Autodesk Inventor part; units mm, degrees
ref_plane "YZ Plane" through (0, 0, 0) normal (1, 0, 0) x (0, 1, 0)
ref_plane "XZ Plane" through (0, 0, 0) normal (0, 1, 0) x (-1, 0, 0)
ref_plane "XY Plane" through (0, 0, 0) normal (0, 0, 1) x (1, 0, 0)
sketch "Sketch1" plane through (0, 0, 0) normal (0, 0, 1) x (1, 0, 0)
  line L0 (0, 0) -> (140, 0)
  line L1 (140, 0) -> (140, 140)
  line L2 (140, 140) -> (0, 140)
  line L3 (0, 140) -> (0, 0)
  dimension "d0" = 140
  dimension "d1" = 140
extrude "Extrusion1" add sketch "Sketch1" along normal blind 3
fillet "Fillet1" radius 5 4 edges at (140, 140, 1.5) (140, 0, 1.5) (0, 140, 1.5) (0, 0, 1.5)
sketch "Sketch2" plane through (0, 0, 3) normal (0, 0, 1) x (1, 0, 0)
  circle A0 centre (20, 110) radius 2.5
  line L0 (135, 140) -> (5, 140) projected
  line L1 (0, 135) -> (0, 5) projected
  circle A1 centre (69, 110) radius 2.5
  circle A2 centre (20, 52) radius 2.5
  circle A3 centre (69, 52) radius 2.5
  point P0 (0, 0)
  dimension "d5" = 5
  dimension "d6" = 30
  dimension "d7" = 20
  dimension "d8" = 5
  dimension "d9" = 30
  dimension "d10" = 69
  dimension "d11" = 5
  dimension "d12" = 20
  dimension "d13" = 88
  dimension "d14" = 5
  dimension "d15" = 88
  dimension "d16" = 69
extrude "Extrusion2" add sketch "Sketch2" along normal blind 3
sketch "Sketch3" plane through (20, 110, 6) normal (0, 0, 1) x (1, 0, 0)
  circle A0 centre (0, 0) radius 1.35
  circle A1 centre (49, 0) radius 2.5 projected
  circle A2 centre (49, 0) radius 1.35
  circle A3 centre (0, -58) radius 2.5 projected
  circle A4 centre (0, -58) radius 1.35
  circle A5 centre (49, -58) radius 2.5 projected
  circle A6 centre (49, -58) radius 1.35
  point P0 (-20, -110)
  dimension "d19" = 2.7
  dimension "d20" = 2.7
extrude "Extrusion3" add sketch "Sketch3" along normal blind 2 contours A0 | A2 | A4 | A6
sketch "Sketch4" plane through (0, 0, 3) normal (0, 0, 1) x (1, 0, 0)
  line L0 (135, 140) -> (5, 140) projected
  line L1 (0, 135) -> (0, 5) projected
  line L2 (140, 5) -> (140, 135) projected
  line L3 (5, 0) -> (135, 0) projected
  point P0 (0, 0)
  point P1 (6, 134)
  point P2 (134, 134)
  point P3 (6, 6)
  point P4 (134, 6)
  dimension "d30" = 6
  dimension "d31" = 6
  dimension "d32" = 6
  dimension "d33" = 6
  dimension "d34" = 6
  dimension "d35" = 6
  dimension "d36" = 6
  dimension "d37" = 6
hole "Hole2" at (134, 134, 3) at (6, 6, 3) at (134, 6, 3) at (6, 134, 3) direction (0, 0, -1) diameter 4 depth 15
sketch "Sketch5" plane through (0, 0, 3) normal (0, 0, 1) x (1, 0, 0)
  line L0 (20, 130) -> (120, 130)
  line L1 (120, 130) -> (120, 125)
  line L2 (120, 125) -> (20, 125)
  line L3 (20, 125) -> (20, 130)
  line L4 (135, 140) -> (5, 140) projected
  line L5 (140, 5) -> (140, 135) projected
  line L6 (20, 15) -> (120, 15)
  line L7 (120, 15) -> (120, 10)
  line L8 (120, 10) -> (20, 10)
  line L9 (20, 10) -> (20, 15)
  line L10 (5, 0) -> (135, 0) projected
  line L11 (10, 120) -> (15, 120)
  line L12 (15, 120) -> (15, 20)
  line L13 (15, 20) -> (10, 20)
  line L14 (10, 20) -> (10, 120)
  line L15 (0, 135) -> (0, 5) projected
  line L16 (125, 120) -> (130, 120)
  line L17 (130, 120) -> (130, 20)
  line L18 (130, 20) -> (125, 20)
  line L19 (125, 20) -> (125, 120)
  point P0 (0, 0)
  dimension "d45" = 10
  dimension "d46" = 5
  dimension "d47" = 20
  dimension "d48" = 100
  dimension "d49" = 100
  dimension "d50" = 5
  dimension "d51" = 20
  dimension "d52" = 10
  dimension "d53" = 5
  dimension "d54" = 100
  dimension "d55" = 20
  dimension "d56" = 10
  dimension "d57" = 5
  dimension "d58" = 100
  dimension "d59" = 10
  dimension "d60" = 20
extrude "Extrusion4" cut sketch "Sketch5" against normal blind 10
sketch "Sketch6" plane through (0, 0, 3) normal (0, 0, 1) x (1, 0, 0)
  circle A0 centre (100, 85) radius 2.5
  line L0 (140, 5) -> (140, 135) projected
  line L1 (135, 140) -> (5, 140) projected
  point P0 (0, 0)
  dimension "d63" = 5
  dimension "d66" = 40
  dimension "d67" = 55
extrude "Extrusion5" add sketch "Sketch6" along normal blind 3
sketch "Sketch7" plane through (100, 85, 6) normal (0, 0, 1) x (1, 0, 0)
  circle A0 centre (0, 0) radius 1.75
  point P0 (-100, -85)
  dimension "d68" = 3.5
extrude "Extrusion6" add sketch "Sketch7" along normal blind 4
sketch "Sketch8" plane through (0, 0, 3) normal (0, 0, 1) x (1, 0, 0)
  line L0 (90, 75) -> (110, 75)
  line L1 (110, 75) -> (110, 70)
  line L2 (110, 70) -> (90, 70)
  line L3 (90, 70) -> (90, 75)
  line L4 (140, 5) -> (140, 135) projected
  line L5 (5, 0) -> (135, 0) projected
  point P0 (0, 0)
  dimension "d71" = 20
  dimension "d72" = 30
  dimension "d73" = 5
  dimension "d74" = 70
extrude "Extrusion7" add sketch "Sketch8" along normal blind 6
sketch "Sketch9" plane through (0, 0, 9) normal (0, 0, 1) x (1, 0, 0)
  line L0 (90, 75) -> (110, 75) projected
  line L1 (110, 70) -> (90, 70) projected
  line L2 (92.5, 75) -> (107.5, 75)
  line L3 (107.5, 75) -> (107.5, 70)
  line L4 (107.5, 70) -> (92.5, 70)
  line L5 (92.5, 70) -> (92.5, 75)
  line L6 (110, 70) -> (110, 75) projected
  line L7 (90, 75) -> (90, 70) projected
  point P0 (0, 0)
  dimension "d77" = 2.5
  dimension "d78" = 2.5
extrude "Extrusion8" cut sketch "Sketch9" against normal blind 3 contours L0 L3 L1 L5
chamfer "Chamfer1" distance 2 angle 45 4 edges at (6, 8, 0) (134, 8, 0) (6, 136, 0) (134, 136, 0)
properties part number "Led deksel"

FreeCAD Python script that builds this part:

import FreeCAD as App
import Part
import Sketcher
from FreeCAD import Vector


def edges_at(feature, points):
    """Names of the edges that pass closest to the given points."""
    edges = feature.Shape.Edges
    near = lambda p: min(range(len(edges)), key=lambda i: edges[i].distToShape(Part.Vertex(*p))[0])
    return sorted({f"Edge{near(p) + 1}" for p in points})

doc = App.newDocument("Part")
body = doc.addObject("PartDesign::Body", "Body")

# Sketch on XY plane
sketch1 = body.newObject("Sketcher::SketchObject", "Sketch")
sketch1.AttachmentSupport = (doc.getObject("XY_Plane"), [""])
sketch1.MapMode = "FlatFace"
sketch1.addGeometry(Part.LineSegment(Vector(0, 140, 0), Vector(0, 0, 0)), False)
sketch1.addGeometry(Part.LineSegment(Vector(0, 0, 0), Vector(140, 0, 0)), False)
sketch1.addGeometry(Part.LineSegment(Vector(140, 0, 0), Vector(140, 140, 0)), False)
sketch1.addGeometry(Part.LineSegment(Vector(140, 140, 0), Vector(0, 140, 0)), False)
sketch1.addConstraint(Sketcher.Constraint("Coincident", 0, 2, 1, 1))
sketch1.addConstraint(Sketcher.Constraint("Coincident", 1, 2, 2, 1))
sketch1.addConstraint(Sketcher.Constraint("Coincident", 2, 2, 3, 1))
sketch1.addConstraint(Sketcher.Constraint("Coincident", 3, 2, 0, 1))
sketch1.addConstraint(Sketcher.Constraint("Vertical", 0))
sketch1.addConstraint(Sketcher.Constraint("Horizontal", 1))
sketch1.addConstraint(Sketcher.Constraint("Vertical", 2))
sketch1.addConstraint(Sketcher.Constraint("Horizontal", 3))
sketch1.addConstraint(Sketcher.Constraint("Coincident", 0, 2, -1, 1))
sketch1.addConstraint(Sketcher.Constraint("Equal", 3, 0))
sketch1.addConstraint(Sketcher.Constraint("DistanceX", 1, 1, 1, 2, 140.0))
pad1 = body.newObject("PartDesign::Pad", "Pad")
pad1.Profile = sketch1
pad1.Length = 3
doc.recompute()

fillet = body.newObject("PartDesign::Fillet", "Fillet")
fillet.Base = (pad1, edges_at(pad1, [
    (140, 140, 1.5),
    (140, 0, 1.5),
    (0, 140, 1.5),
    (0, 0, 1.5),
]))
fillet.Radius = 5

# Sketch on XY plane
sketch2 = body.newObject("Sketcher::SketchObject", "Sketch001")
sketch2.AttachmentSupport = (doc.getObject("XY_Plane"), [""])
sketch2.MapMode = "FlatFace"
sketch2.AttachmentOffset = App.Placement(Vector(0, 0, 3), App.Rotation())
sketch2.addGeometry(Part.Circle(Vector(20, 110, 0), Vector(0, 0, 1), 2.5), False)
sketch2.addGeometry(Part.Circle(Vector(69, 110, 0), Vector(0, 0, 1), 2.5), False)
sketch2.addGeometry(Part.Circle(Vector(20, 52, 0), Vector(0, 0, 1), 2.5), False)
sketch2.addGeometry(Part.Circle(Vector(69, 52, 0), Vector(0, 0, 1), 2.5), False)
sketch2.addConstraint(Sketcher.Constraint("Equal", 0, 1))
sketch2.addConstraint(Sketcher.Constraint("Equal", 1, 2))
sketch2.addConstraint(Sketcher.Constraint("Equal", 2, 3))
sketch2.addConstraint(Sketcher.Constraint("Horizontal", 0, 3, 1, 3))
sketch2.addConstraint(Sketcher.Constraint("Horizontal", 2, 3, 3, 3))
sketch2.addConstraint(Sketcher.Constraint("Vertical", 0, 3, 2, 3))
sketch2.addConstraint(Sketcher.Constraint("Vertical", 1, 3, 3, 3))
sketch2.addConstraint(Sketcher.Constraint("Diameter", 0, 5.0))
sketch2.addConstraint(Sketcher.Constraint("DistanceX", -1, 1, 0, 3, 20.0))
sketch2.addConstraint(Sketcher.Constraint("DistanceX", -1, 1, 1, 3, 69.0))
sketch2.addConstraint(Sketcher.Constraint("DistanceY", -1, 1, 0, 3, 110.0))
sketch2.addConstraint(Sketcher.Constraint("DistanceY", -1, 1, 2, 3, 52.0))
pad2 = body.newObject("PartDesign::Pad", "Pad001")
pad2.Profile = sketch2
pad2.Length = 3

# Sketch on XY plane
sketch3 = body.newObject("Sketcher::SketchObject", "Sketch002")
sketch3.AttachmentSupport = (doc.getObject("XY_Plane"), [""])
sketch3.MapMode = "FlatFace"
sketch3.AttachmentOffset = App.Placement(Vector(0, 0, 6), App.Rotation())
sketch3.addGeometry(Part.Circle(Vector(20, 110, 0), Vector(0, 0, 1), 1.35), False)
sketch3.addGeometry(Part.Circle(Vector(69, 110, 0), Vector(0, 0, 1), 1.35), False)
sketch3.addGeometry(Part.Circle(Vector(20, 52, 0), Vector(0, 0, 1), 1.35), False)
sketch3.addGeometry(Part.Circle(Vector(69, 52, 0), Vector(0, 0, 1), 1.35), False)
sketch3.addConstraint(Sketcher.Constraint("Equal", 0, 1))
sketch3.addConstraint(Sketcher.Constraint("Equal", 1, 2))
sketch3.addConstraint(Sketcher.Constraint("Equal", 2, 3))
sketch3.addConstraint(Sketcher.Constraint("Horizontal", 0, 3, 1, 3))
sketch3.addConstraint(Sketcher.Constraint("Horizontal", 2, 3, 3, 3))
sketch3.addConstraint(Sketcher.Constraint("Vertical", 0, 3, 2, 3))
sketch3.addConstraint(Sketcher.Constraint("Vertical", 1, 3, 3, 3))
sketch3.addConstraint(Sketcher.Constraint("Diameter", 0, 2.7))
sketch3.addConstraint(Sketcher.Constraint("DistanceX", -1, 1, 0, 3, 20.0))
sketch3.addConstraint(Sketcher.Constraint("DistanceY", -1, 1, 0, 3, 110.0))
sketch3.addConstraint(Sketcher.Constraint("DistanceX", -1, 1, 1, 3, 69.0))
sketch3.addConstraint(Sketcher.Constraint("DistanceY", -1, 1, 2, 3, 52.0))
pad3 = body.newObject("PartDesign::Pad", "Pad002")
pad3.Profile = sketch3
pad3.Length = 2

# Sketch on XY plane
sketch4 = body.newObject("Sketcher::SketchObject", "Sketch003")
sketch4.AttachmentSupport = (doc.getObject("XY_Plane"), [""])
sketch4.MapMode = "FlatFace"
sketch4.AttachmentOffset = App.Placement(Vector(0, 0, 3), App.Rotation())
sketch4.addGeometry(Part.Circle(Vector(134, 134, 0), Vector(0, 0, 1), 2), False)
sketch4.addGeometry(Part.Circle(Vector(6, 6, 0), Vector(0, 0, 1), 2), False)
sketch4.addGeometry(Part.Circle(Vector(134, 6, 0), Vector(0, 0, 1), 2), False)
sketch4.addGeometry(Part.Circle(Vector(6, 134, 0), Vector(0, 0, 1), 2), False)
sketch4.addConstraint(Sketcher.Constraint("Equal", 0, 1))
sketch4.addConstraint(Sketcher.Constraint("Equal", 1, 2))
sketch4.addConstraint(Sketcher.Constraint("Equal", 2, 3))
sketch4.addConstraint(Sketcher.Constraint("Horizontal", 1, 3, 2, 3))
sketch4.addConstraint(Sketcher.Constraint("Horizontal", 0, 3, 3, 3))
sketch4.addConstraint(Sketcher.Constraint("Vertical", 0, 3, 2, 3))
sketch4.addConstraint(Sketcher.Constraint("Vertical", 1, 3, 3, 3))
sketch4.addConstraint(Sketcher.Constraint("Diameter", 0, 4.0))
sketch4.addConstraint(Sketcher.Constraint("DistanceX", -1, 1, 0, 3, 134.0))
sketch4.addConstraint(Sketcher.Constraint("DistanceY", -1, 1, 0, 3, 134.0))
sketch4.addConstraint(Sketcher.Constraint("DistanceX", -1, 1, 1, 3, 6.0))
sketch4.addConstraint(Sketcher.Constraint("DistanceY", -1, 1, 1, 3, 6.0))
doc.recompute()
hole = body.newObject("PartDesign::Hole", "Hole")
hole.Profile = sketch4
hole.ThreadType = "None"
hole.Diameter = 4
hole.DepthType = "Dimension"
hole.Depth = 15
hole.DrillPoint = "Flat"

# Sketch on XY plane
sketch5 = body.newObject("Sketcher::SketchObject", "Sketch004")
sketch5.AttachmentSupport = (doc.getObject("XY_Plane"), [""])
sketch5.MapMode = "FlatFace"
sketch5.AttachmentOffset = App.Placement(Vector(0, 0, 3), App.Rotation())
sketch5.addGeometry(Part.LineSegment(Vector(120, 130, 0), Vector(20, 130, 0)), False)
sketch5.addGeometry(Part.LineSegment(Vector(20, 130, 0), Vector(20, 125, 0)), False)
sketch5.addGeometry(Part.LineSegment(Vector(20, 125, 0), Vector(120, 125, 0)), False)
sketch5.addGeometry(Part.LineSegment(Vector(120, 125, 0), Vector(120, 130, 0)), False)
sketch5.addGeometry(Part.LineSegment(Vector(120, 15, 0), Vector(20, 15, 0)), False)
sketch5.addGeometry(Part.LineSegment(Vector(20, 15, 0), Vector(20, 10, 0)), False)
sketch5.addGeometry(Part.LineSegment(Vector(20, 10, 0), Vector(120, 10, 0)), False)
sketch5.addGeometry(Part.LineSegment(Vector(120, 10, 0), Vector(120, 15, 0)), False)
sketch5.addGeometry(Part.LineSegment(Vector(15, 120, 0), Vector(10, 120, 0)), False)
sketch5.addGeometry(Part.LineSegment(Vector(10, 120, 0), Vector(10, 20, 0)), False)
sketch5.addGeometry(Part.LineSegment(Vector(10, 20, 0), Vector(15, 20, 0)), False)
sketch5.addGeometry(Part.LineSegment(Vector(15, 20, 0), Vector(15, 120, 0)), False)
sketch5.addGeometry(Part.LineSegment(Vector(130, 120, 0), Vector(125, 120, 0)), False)
sketch5.addGeometry(Part.LineSegment(Vector(125, 120, 0), Vector(125, 20, 0)), False)
sketch5.addGeometry(Part.LineSegment(Vector(125, 20, 0), Vector(130, 20, 0)), False)
sketch5.addGeometry(Part.LineSegment(Vector(130, 20, 0), Vector(130, 120, 0)), False)
sketch5.addConstraint(Sketcher.Constraint("Coincident", 0, 2, 1, 1))
sketch5.addConstraint(Sketcher.Constraint("Coincident", 1, 2, 2, 1))
sketch5.addConstraint(Sketcher.Constraint("Coincident", 2, 2, 3, 1))
sketch5.addConstraint(Sketcher.Constraint("Coincident", 3, 2, 0, 1))
sketch5.addConstraint(Sketcher.Constraint("Coincident", 4, 2, 5, 1))
sketch5.addConstraint(Sketcher.Constraint("Coincident", 5, 2, 6, 1))
sketch5.addConstraint(Sketcher.Constraint("Coincident", 6, 2, 7, 1))
sketch5.addConstraint(Sketcher.Constraint("Coincident", 7, 2, 4, 1))
sketch5.addConstraint(Sketcher.Constraint("Coincident", 8, 2, 9, 1))
sketch5.addConstraint(Sketcher.Constraint("Coincident", 9, 2, 10, 1))
sketch5.addConstraint(Sketcher.Constraint("Coincident", 10, 2, 11, 1))
sketch5.addConstraint(Sketcher.Constraint("Coincident", 11, 2, 8, 1))
sketch5.addConstraint(Sketcher.Constraint("Coincident", 12, 2, 13, 1))
sketch5.addConstraint(Sketcher.Constraint("Coincident", 13, 2, 14, 1))
sketch5.addConstraint(Sketcher.Constraint("Coincident", 14, 2, 15, 1))
sketch5.addConstraint(Sketcher.Constraint("Coincident", 15, 2, 12, 1))
sketch5.addConstraint(Sketcher.Constraint("Horizontal", 0))
sketch5.addConstraint(Sketcher.Constraint("Vertical", 1))
sketch5.addConstraint(Sketcher.Constraint("Horizontal", 2))
sketch5.addConstraint(Sketcher.Constraint("Vertical", 3))
sketch5.addConstraint(Sketcher.Constraint("Horizontal", 4))
sketch5.addConstraint(Sketcher.Constraint("Vertical", 5))
sketch5.addConstraint(Sketcher.Constraint("Horizontal", 6))
sketch5.addConstraint(Sketcher.Constraint("Vertical", 7))
sketch5.addConstraint(Sketcher.Constraint("Horizontal", 8))
sketch5.addConstraint(Sketcher.Constraint("Vertical", 9))
sketch5.addConstraint(Sketcher.Constraint("Horizontal", 10))
sketch5.addConstraint(Sketcher.Constraint("Vertical", 11))
sketch5.addConstraint(Sketcher.Constraint("Horizontal", 12))
sketch5.addConstraint(Sketcher.Constraint("Vertical", 13))
sketch5.addConstraint(Sketcher.Constraint("Horizontal", 14))
sketch5.addConstraint(Sketcher.Constraint("Vertical", 15))
sketch5.addConstraint(Sketcher.Constraint("Horizontal", 11, 2, 12, 2))
sketch5.addConstraint(Sketcher.Constraint("Horizontal", 10, 2, 13, 2))
sketch5.addConstraint(Sketcher.Constraint("Vertical", 1, 2, 4, 2))
sketch5.addConstraint(Sketcher.Constraint("Vertical", 3, 2, 6, 2))
sketch5.addConstraint(Sketcher.Constraint("Equal", 10, 12))
sketch5.addConstraint(Sketcher.Constraint("Equal", 14, 1))
sketch5.addConstraint(Sketcher.Constraint("Equal", 3, 5))
sketch5.addConstraint(Sketcher.Constraint("Equal", 6, 9))
sketch5.addConstraint(Sketcher.Constraint("DistanceX", 0, 2, 0, 1, 100.0))
sketch5.addConstraint(Sketcher.Constraint("DistanceX", 8, 2, 8, 1, 5.0))
sketch5.addConstraint(Sketcher.Constraint("DistanceX", -1, 1, 0, 2, 20.0))
sketch5.addConstraint(Sketcher.Constraint("DistanceY", -1, 1, 5, 2, 10.0))
sketch5.addConstraint(Sketcher.Constraint("DistanceX", -1, 1, 8, 2, 10.0))
sketch5.addConstraint(Sketcher.Constraint("DistanceY", -1, 1, 9, 2, 20.0))
sketch5.addConstraint(Sketcher.Constraint("DistanceY", 8, 2, 1, 2, 5.0))
sketch5.addConstraint(Sketcher.Constraint("DistanceX", 2, 2, 12, 2, 5.0))
pocket1 = body.newObject("PartDesign::Pocket", "Pocket")
pocket1.Profile = sketch5
pocket1.Length = 10

# Sketch on XY plane
sketch6 = body.newObject("Sketcher::SketchObject", "Sketch005")
sketch6.AttachmentSupport = (doc.getObject("XY_Plane"), [""])
sketch6.MapMode = "FlatFace"
sketch6.AttachmentOffset = App.Placement(Vector(0, 0, 3), App.Rotation())
sketch6.addGeometry(Part.Circle(Vector(100, 85, 0), Vector(0, 0, 1), 2.5), False)
sketch6.addConstraint(Sketcher.Constraint("Diameter", 0, 5.0))
sketch6.addConstraint(Sketcher.Constraint("DistanceX", -1, 1, 0, 3, 100.0))
sketch6.addConstraint(Sketcher.Constraint("DistanceY", -1, 1, 0, 3, 85.0))
pad4 = body.newObject("PartDesign::Pad", "Pad003")
pad4.Profile = sketch6
pad4.Length = 3

# Sketch on XY plane
sketch7 = body.newObject("Sketcher::SketchObject", "Sketch006")
sketch7.AttachmentSupport = (doc.getObject("XY_Plane"), [""])
sketch7.MapMode = "FlatFace"
sketch7.AttachmentOffset = App.Placement(Vector(0, 0, 6), App.Rotation())
sketch7.addGeometry(Part.Circle(Vector(100, 85, 0), Vector(0, 0, 1), 1.75), False)
sketch7.addConstraint(Sketcher.Constraint("Diameter", 0, 3.5))
sketch7.addConstraint(Sketcher.Constraint("DistanceX", -1, 1, 0, 3, 100.0))
sketch7.addConstraint(Sketcher.Constraint("DistanceY", -1, 1, 0, 3, 85.0))
pad5 = body.newObject("PartDesign::Pad", "Pad004")
pad5.Profile = sketch7
pad5.Length = 4

# Sketch on XY plane
sketch8 = body.newObject("Sketcher::SketchObject", "Sketch007")
sketch8.AttachmentSupport = (doc.getObject("XY_Plane"), [""])
sketch8.MapMode = "FlatFace"
sketch8.AttachmentOffset = App.Placement(Vector(0, 0, 3), App.Rotation())
sketch8.addGeometry(Part.LineSegment(Vector(110, 75, 0), Vector(90, 75, 0)), False)
sketch8.addGeometry(Part.LineSegment(Vector(90, 75, 0), Vector(90, 70, 0)), False)
sketch8.addGeometry(Part.LineSegment(Vector(90, 70, 0), Vector(110, 70, 0)), False)
sketch8.addGeometry(Part.LineSegment(Vector(110, 70, 0), Vector(110, 75, 0)), False)
sketch8.addConstraint(Sketcher.Constraint("Coincident", 0, 2, 1, 1))
sketch8.addConstraint(Sketcher.Constraint("Coincident", 1, 2, 2, 1))
sketch8.addConstraint(Sketcher.Constraint("Coincident", 2, 2, 3, 1))
sketch8.addConstraint(Sketcher.Constraint("Coincident", 3, 2, 0, 1))
sketch8.addConstraint(Sketcher.Constraint("Horizontal", 0))
sketch8.addConstraint(Sketcher.Constraint("Vertical", 1))
sketch8.addConstraint(Sketcher.Constraint("Horizontal", 2))
sketch8.addConstraint(Sketcher.Constraint("Vertical", 3))
sketch8.addConstraint(Sketcher.Constraint("DistanceX", 0, 2, 0, 1, 20.0))
sketch8.addConstraint(Sketcher.Constraint("DistanceY", 1, 2, 1, 1, 5.0))
sketch8.addConstraint(Sketcher.Constraint("DistanceY", -1, 1, 1, 2, 70.0))
sketch8.addConstraint(Sketcher.Constraint("DistanceX", -1, 1, 0, 2, 90.0))
pad6 = body.newObject("PartDesign::Pad", "Pad005")
pad6.Profile = sketch8
pad6.Length = 6

# Sketch on XY plane
sketch9 = body.newObject("Sketcher::SketchObject", "Sketch008")
sketch9.AttachmentSupport = (doc.getObject("XY_Plane"), [""])
sketch9.MapMode = "FlatFace"
sketch9.AttachmentOffset = App.Placement(Vector(0, 0, 9), App.Rotation())
sketch9.addGeometry(Part.LineSegment(Vector(107.5, 75, 0), Vector(92.5, 75, 0)), False)
sketch9.addGeometry(Part.LineSegment(Vector(92.5, 75, 0), Vector(92.5, 70, 0)), False)
sketch9.addGeometry(Part.LineSegment(Vector(92.5, 70, 0), Vector(107.5, 70, 0)), False)
sketch9.addGeometry(Part.LineSegment(Vector(107.5, 70, 0), Vector(107.5, 75, 0)), False)
sketch9.addConstraint(Sketcher.Constraint("Coincident", 0, 2, 1, 1))
sketch9.addConstraint(Sketcher.Constraint("Coincident", 1, 2, 2, 1))
sketch9.addConstraint(Sketcher.Constraint("Coincident", 2, 2, 3, 1))
sketch9.addConstraint(Sketcher.Constraint("Coincident", 3, 2, 0, 1))
sketch9.addConstraint(Sketcher.Constraint("Horizontal", 0))
sketch9.addConstraint(Sketcher.Constraint("Vertical", 1))
sketch9.addConstraint(Sketcher.Constraint("Horizontal", 2))
sketch9.addConstraint(Sketcher.Constraint("Vertical", 3))
sketch9.addConstraint(Sketcher.Constraint("DistanceX", 0, 2, 0, 1, 15.0))
sketch9.addConstraint(Sketcher.Constraint("DistanceY", 1, 2, 1, 1, 5.0))
sketch9.addConstraint(Sketcher.Constraint("DistanceY", -1, 1, 0, 2, 75.0))
sketch9.addConstraint(Sketcher.Constraint("DistanceX", -1, 1, 0, 2, 92.5))
pocket2 = body.newObject("PartDesign::Pocket", "Pocket001")
pocket2.Profile = sketch9
pocket2.Length = 3
doc.recompute()

chamfer = body.newObject("PartDesign::Chamfer", "Chamfer")
chamfer.Base = (pocket2, edges_at(pocket2, [
    (6, 8, 0),
    (134, 8, 0),
    (6, 136, 0),
    (134, 136, 0),
]))
chamfer.Size = 2

doc.recompute()
